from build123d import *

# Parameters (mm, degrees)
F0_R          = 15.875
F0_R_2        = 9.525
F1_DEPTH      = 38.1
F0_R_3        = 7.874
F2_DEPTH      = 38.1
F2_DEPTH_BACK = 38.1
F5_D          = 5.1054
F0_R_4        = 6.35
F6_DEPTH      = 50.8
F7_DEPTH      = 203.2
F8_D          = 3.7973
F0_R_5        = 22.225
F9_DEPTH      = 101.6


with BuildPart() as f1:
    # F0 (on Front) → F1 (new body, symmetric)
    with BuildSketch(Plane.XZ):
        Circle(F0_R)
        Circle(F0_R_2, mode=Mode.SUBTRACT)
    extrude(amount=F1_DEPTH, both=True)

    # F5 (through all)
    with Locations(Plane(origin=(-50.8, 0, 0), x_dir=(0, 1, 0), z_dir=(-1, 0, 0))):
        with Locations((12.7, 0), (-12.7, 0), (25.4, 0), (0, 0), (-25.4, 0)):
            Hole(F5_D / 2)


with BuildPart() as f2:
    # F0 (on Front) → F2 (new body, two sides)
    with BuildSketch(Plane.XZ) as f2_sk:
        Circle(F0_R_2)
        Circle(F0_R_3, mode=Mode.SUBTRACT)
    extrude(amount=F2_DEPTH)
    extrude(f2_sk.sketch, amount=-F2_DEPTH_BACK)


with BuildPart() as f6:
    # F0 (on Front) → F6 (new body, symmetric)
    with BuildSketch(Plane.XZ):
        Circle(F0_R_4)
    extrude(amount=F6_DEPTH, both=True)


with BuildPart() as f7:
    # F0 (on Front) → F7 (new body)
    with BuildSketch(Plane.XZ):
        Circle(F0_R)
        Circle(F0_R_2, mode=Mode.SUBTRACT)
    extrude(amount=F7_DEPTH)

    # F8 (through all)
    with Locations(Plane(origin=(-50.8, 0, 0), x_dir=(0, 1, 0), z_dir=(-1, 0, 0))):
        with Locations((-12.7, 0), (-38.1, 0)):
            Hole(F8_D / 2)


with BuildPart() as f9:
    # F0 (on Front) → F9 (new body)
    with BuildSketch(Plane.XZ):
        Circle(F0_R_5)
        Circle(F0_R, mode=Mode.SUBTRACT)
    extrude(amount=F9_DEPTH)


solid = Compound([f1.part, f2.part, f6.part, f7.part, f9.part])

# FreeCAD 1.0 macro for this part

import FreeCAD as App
import Part
import Sketcher
Q = App.Units.Quantity

doc = App.newDocument("Part")
body = doc.addObject("PartDesign::Body", "Body")

# Sketch on XZ plane
sketch1 = doc.addObject("Sketcher::SketchObject", "Sketch")
body.addObject(sketch1)
sketch1.AttachmentSupport = (doc.XZ_Plane, [""])
sketch1.MapMode = "FlatFace"
sketch1.addGeometry([
    Part.Circle(App.Vector(0, 0, 0), App.Vector(0, 0, 1), 15.875),
    Part.Circle(App.Vector(0, 0, 0), App.Vector(0, 0, 1), 9.525),
], False)
sketch1.addConstraint([
    Sketcher.Constraint("Coincident", 0, 3, -1, 1),
    Sketcher.Constraint("Coincident", 1, 3, -1, 1),
    Sketcher.Constraint("Diameter", 0, Q("1.25 in")),
    Sketcher.Constraint("Diameter", 1, Q("0.75 in")),
])
pad1 = doc.addObject("PartDesign::Pad", "Pad")
body.addObject(pad1)
pad1.Profile = sketch1
pad1.Length = Q("3 in")
pad1.Midplane = True

# Sketch on YZ plane
sketch2 = doc.addObject("Sketcher::SketchObject", "Sketch001")
body.addObject(sketch2)
sketch2.AttachmentSupport = (doc.YZ_Plane, [""])
sketch2.MapMode = "FlatFace"
sketch2.AttachmentOffset = App.Placement(App.Vector(0, 0, -2 * 25.4), App.Rotation())
sketch2.addGeometry([
    Part.Circle(App.Vector(12.7, 0, 0), App.Vector(0, 0, 1), 2.5527),  # 0
    Part.Circle(App.Vector(-12.7, 0, 0), App.Vector(0, 0, 1), 2.5527),  # 1
    Part.Circle(App.Vector(25.4, 0, 0), App.Vector(0, 0, 1), 2.5527),  # 2
    Part.Circle(App.Vector(0, 0, 0), App.Vector(0, 0, 1), 2.5527),  # 3
    Part.Circle(App.Vector(-25.4, 0, 0), App.Vector(0, 0, 1), 2.5527),  # 4
], False)
sketch2.addConstraint([
    Sketcher.Constraint("Coincident", 3, 3, -1, 1),
    Sketcher.Constraint("Equal", 0, 1),
    Sketcher.Constraint("Equal", 1, 2),
    Sketcher.Constraint("Equal", 2, 3),
    Sketcher.Constraint("Equal", 3, 4),
    Sketcher.Constraint("Symmetric", 0, 3, 1, 3, -1, 1),
    Sketcher.Constraint("Symmetric", 2, 3, 4, 3, -1, 1),
    Sketcher.Constraint("PointOnObject", 0, 3, -1),
    Sketcher.Constraint("PointOnObject", 2, 3, -1),
    Sketcher.Constraint("Diameter", 0, Q("0.201 in")),
    Sketcher.Constraint("DistanceX", -1, 1, 2, 3, Q("1 in")),
    Sketcher.Constraint("DistanceX", 1, 3, 0, 3, Q("1 in")),
])
doc.recompute()
hole = doc.addObject("PartDesign::Hole", "Hole")
body.addObject(hole)
hole.Profile = sketch2
hole.ThreadType = "None"
hole.Diameter = Q("0.201 in")
hole.DepthType = "ThroughAll"
hole.Reversed = True
body2 = doc.addObject("PartDesign::Body", "Body001")

# Sketch on XZ plane
sketch3 = doc.addObject("Sketcher::SketchObject", "Sketch002")
body2.addObject(sketch3)
sketch3.AttachmentSupport = (doc.getObject("XZ_Plane001"), [""])
sketch3.MapMode = "FlatFace"
sketch3.addGeometry([
    Part.Circle(App.Vector(0, 0, 0), App.Vector(0, 0, 1), 9.525),
    Part.Circle(App.Vector(0, 0, 0), App.Vector(0, 0, 1), 7.874),
], False)
sketch3.addConstraint([
    Sketcher.Constraint("Coincident", 0, 3, -1, 1),
    Sketcher.Constraint("Coincident", 1, 3, -1, 1),
    Sketcher.Constraint("Diameter", 0, Q("0.75 in")),
    Sketcher.Constraint("Diameter", 1, Q("0.62 in")),
])
pad2 = doc.addObject("PartDesign::Pad", "Pad001")
body2.addObject(pad2)
pad2.Profile = sketch3
pad2.Type = "TwoLengths"
pad2.Length = Q("1.5 in")
pad2.Length2 = Q("1.5 in")
body3 = doc.addObject("PartDesign::Body", "Body002")

# Sketch on XZ plane
sketch4 = doc.addObject("Sketcher::SketchObject", "Sketch003")
body3.addObject(sketch4)
sketch4.AttachmentSupport = (doc.getObject("XZ_Plane002"), [""])
sketch4.MapMode = "FlatFace"
sketch4.addGeometry(Part.Circle(App.Vector(0, 0, 0), App.Vector(0, 0, 1), 6.35), False)
sketch4.addConstraint([
    Sketcher.Constraint("Coincident", 0, 3, -1, 1),
    Sketcher.Constraint("Diameter", 0, Q("0.5 in")),
])
pad3 = doc.addObject("PartDesign::Pad", "Pad002")
body3.addObject(pad3)
pad3.Profile = sketch4
pad3.Length = Q("4 in")
pad3.Midplane = True
body4 = doc.addObject("PartDesign::Body", "Body003")

# Sketch on XZ plane
sketch5 = doc.addObject("Sketcher::SketchObject", "Sketch004")
body4.addObject(sketch5)
sketch5.AttachmentSupport = (doc.getObject("XZ_Plane003"), [""])
sketch5.MapMode = "FlatFace"
sketch5.addGeometry([
    Part.Circle(App.Vector(0, 0, 0), App.Vector(0, 0, 1), 15.875),
    Part.Circle(App.Vector(0, 0, 0), App.Vector(0, 0, 1), 9.525),
], False)
sketch5.addConstraint([
    Sketcher.Constraint("Coincident", 0, 3, -1, 1),
    Sketcher.Constraint("Coincident", 1, 3, -1, 1),
    Sketcher.Constraint("Diameter", 0, Q("1.25 in")),
    Sketcher.Constraint("Diameter", 1, Q("0.75 in")),
])
pad4 = doc.addObject("PartDesign::Pad", "Pad003")
body4.addObject(pad4)
pad4.Profile = sketch5
pad4.Length = Q("8 in")

# Sketch on YZ plane
sketch6 = doc.addObject("Sketcher::SketchObject", "Sketch005")
body4.addObject(sketch6)
sketch6.AttachmentSupport = (doc.getObject("YZ_Plane003"), [""])
sketch6.MapMode = "FlatFace"
sketch6.AttachmentOffset = App.Placement(App.Vector(0, 0, -2 * 25.4), App.Rotation())
sketch6.addGeometry([
    Part.Circle(App.Vector(-12.7, 0, 0), App.Vector(0, 0, 1), 1.89865),
    Part.Circle(App.Vector(-38.1, 0, 0), App.Vector(0, 0, 1), 1.89865),
], False)
sketch6.addConstraint([
    Sketcher.Constraint("Equal", 0, 1),
    Sketcher.Constraint("PointOnObject", 0, 3, -1),
    Sketcher.Constraint("PointOnObject", 1, 3, -1),
    Sketcher.Constraint("DistanceX", 1, 3, 0, 3, Q("1 in")),
    Sketcher.Constraint("Diameter", 0, Q("0.1495 in")),
    Sketcher.Constraint("DistanceX", 0, 3, -1, 1, Q("0.5 in")),
])
doc.recompute()
hole2 = doc.addObject("PartDesign::Hole", "Hole001")
body4.addObject(hole2)
hole2.Profile = sketch6
hole2.ThreadType = "None"
hole2.Diameter = Q("0.1495 in")
hole2.DepthType = "ThroughAll"
hole2.Reversed = True
body5 = doc.addObject("PartDesign::Body", "Body004")

# Sketch on XZ plane
sketch7 = doc.addObject("Sketcher::SketchObject", "Sketch006")
body5.addObject(sketch7)
sketch7.AttachmentSupport = (doc.getObject("XZ_Plane004"), [""])
sketch7.MapMode = "FlatFace"
sketch7.addGeometry([
    Part.Circle(App.Vector(0, 0, 0), App.Vector(0, 0, 1), 22.225),
    Part.Circle(App.Vector(0, 0, 0), App.Vector(0, 0, 1), 15.875),
], False)
sketch7.addConstraint([
    Sketcher.Constraint("Coincident", 0, 3, -1, 1),
    Sketcher.Constraint("Coincident", 1, 3, -1, 1),
    Sketcher.Constraint("Diameter", 0, Q("1.75 in")),
    Sketcher.Constraint("Diameter", 1, Q("1.25 in")),
])
pad5 = doc.addObject("PartDesign::Pad", "Pad004")
body5.addObject(pad5)
pad5.Profile = sketch7
pad5.Length = Q("4 in")

doc.recompute()
